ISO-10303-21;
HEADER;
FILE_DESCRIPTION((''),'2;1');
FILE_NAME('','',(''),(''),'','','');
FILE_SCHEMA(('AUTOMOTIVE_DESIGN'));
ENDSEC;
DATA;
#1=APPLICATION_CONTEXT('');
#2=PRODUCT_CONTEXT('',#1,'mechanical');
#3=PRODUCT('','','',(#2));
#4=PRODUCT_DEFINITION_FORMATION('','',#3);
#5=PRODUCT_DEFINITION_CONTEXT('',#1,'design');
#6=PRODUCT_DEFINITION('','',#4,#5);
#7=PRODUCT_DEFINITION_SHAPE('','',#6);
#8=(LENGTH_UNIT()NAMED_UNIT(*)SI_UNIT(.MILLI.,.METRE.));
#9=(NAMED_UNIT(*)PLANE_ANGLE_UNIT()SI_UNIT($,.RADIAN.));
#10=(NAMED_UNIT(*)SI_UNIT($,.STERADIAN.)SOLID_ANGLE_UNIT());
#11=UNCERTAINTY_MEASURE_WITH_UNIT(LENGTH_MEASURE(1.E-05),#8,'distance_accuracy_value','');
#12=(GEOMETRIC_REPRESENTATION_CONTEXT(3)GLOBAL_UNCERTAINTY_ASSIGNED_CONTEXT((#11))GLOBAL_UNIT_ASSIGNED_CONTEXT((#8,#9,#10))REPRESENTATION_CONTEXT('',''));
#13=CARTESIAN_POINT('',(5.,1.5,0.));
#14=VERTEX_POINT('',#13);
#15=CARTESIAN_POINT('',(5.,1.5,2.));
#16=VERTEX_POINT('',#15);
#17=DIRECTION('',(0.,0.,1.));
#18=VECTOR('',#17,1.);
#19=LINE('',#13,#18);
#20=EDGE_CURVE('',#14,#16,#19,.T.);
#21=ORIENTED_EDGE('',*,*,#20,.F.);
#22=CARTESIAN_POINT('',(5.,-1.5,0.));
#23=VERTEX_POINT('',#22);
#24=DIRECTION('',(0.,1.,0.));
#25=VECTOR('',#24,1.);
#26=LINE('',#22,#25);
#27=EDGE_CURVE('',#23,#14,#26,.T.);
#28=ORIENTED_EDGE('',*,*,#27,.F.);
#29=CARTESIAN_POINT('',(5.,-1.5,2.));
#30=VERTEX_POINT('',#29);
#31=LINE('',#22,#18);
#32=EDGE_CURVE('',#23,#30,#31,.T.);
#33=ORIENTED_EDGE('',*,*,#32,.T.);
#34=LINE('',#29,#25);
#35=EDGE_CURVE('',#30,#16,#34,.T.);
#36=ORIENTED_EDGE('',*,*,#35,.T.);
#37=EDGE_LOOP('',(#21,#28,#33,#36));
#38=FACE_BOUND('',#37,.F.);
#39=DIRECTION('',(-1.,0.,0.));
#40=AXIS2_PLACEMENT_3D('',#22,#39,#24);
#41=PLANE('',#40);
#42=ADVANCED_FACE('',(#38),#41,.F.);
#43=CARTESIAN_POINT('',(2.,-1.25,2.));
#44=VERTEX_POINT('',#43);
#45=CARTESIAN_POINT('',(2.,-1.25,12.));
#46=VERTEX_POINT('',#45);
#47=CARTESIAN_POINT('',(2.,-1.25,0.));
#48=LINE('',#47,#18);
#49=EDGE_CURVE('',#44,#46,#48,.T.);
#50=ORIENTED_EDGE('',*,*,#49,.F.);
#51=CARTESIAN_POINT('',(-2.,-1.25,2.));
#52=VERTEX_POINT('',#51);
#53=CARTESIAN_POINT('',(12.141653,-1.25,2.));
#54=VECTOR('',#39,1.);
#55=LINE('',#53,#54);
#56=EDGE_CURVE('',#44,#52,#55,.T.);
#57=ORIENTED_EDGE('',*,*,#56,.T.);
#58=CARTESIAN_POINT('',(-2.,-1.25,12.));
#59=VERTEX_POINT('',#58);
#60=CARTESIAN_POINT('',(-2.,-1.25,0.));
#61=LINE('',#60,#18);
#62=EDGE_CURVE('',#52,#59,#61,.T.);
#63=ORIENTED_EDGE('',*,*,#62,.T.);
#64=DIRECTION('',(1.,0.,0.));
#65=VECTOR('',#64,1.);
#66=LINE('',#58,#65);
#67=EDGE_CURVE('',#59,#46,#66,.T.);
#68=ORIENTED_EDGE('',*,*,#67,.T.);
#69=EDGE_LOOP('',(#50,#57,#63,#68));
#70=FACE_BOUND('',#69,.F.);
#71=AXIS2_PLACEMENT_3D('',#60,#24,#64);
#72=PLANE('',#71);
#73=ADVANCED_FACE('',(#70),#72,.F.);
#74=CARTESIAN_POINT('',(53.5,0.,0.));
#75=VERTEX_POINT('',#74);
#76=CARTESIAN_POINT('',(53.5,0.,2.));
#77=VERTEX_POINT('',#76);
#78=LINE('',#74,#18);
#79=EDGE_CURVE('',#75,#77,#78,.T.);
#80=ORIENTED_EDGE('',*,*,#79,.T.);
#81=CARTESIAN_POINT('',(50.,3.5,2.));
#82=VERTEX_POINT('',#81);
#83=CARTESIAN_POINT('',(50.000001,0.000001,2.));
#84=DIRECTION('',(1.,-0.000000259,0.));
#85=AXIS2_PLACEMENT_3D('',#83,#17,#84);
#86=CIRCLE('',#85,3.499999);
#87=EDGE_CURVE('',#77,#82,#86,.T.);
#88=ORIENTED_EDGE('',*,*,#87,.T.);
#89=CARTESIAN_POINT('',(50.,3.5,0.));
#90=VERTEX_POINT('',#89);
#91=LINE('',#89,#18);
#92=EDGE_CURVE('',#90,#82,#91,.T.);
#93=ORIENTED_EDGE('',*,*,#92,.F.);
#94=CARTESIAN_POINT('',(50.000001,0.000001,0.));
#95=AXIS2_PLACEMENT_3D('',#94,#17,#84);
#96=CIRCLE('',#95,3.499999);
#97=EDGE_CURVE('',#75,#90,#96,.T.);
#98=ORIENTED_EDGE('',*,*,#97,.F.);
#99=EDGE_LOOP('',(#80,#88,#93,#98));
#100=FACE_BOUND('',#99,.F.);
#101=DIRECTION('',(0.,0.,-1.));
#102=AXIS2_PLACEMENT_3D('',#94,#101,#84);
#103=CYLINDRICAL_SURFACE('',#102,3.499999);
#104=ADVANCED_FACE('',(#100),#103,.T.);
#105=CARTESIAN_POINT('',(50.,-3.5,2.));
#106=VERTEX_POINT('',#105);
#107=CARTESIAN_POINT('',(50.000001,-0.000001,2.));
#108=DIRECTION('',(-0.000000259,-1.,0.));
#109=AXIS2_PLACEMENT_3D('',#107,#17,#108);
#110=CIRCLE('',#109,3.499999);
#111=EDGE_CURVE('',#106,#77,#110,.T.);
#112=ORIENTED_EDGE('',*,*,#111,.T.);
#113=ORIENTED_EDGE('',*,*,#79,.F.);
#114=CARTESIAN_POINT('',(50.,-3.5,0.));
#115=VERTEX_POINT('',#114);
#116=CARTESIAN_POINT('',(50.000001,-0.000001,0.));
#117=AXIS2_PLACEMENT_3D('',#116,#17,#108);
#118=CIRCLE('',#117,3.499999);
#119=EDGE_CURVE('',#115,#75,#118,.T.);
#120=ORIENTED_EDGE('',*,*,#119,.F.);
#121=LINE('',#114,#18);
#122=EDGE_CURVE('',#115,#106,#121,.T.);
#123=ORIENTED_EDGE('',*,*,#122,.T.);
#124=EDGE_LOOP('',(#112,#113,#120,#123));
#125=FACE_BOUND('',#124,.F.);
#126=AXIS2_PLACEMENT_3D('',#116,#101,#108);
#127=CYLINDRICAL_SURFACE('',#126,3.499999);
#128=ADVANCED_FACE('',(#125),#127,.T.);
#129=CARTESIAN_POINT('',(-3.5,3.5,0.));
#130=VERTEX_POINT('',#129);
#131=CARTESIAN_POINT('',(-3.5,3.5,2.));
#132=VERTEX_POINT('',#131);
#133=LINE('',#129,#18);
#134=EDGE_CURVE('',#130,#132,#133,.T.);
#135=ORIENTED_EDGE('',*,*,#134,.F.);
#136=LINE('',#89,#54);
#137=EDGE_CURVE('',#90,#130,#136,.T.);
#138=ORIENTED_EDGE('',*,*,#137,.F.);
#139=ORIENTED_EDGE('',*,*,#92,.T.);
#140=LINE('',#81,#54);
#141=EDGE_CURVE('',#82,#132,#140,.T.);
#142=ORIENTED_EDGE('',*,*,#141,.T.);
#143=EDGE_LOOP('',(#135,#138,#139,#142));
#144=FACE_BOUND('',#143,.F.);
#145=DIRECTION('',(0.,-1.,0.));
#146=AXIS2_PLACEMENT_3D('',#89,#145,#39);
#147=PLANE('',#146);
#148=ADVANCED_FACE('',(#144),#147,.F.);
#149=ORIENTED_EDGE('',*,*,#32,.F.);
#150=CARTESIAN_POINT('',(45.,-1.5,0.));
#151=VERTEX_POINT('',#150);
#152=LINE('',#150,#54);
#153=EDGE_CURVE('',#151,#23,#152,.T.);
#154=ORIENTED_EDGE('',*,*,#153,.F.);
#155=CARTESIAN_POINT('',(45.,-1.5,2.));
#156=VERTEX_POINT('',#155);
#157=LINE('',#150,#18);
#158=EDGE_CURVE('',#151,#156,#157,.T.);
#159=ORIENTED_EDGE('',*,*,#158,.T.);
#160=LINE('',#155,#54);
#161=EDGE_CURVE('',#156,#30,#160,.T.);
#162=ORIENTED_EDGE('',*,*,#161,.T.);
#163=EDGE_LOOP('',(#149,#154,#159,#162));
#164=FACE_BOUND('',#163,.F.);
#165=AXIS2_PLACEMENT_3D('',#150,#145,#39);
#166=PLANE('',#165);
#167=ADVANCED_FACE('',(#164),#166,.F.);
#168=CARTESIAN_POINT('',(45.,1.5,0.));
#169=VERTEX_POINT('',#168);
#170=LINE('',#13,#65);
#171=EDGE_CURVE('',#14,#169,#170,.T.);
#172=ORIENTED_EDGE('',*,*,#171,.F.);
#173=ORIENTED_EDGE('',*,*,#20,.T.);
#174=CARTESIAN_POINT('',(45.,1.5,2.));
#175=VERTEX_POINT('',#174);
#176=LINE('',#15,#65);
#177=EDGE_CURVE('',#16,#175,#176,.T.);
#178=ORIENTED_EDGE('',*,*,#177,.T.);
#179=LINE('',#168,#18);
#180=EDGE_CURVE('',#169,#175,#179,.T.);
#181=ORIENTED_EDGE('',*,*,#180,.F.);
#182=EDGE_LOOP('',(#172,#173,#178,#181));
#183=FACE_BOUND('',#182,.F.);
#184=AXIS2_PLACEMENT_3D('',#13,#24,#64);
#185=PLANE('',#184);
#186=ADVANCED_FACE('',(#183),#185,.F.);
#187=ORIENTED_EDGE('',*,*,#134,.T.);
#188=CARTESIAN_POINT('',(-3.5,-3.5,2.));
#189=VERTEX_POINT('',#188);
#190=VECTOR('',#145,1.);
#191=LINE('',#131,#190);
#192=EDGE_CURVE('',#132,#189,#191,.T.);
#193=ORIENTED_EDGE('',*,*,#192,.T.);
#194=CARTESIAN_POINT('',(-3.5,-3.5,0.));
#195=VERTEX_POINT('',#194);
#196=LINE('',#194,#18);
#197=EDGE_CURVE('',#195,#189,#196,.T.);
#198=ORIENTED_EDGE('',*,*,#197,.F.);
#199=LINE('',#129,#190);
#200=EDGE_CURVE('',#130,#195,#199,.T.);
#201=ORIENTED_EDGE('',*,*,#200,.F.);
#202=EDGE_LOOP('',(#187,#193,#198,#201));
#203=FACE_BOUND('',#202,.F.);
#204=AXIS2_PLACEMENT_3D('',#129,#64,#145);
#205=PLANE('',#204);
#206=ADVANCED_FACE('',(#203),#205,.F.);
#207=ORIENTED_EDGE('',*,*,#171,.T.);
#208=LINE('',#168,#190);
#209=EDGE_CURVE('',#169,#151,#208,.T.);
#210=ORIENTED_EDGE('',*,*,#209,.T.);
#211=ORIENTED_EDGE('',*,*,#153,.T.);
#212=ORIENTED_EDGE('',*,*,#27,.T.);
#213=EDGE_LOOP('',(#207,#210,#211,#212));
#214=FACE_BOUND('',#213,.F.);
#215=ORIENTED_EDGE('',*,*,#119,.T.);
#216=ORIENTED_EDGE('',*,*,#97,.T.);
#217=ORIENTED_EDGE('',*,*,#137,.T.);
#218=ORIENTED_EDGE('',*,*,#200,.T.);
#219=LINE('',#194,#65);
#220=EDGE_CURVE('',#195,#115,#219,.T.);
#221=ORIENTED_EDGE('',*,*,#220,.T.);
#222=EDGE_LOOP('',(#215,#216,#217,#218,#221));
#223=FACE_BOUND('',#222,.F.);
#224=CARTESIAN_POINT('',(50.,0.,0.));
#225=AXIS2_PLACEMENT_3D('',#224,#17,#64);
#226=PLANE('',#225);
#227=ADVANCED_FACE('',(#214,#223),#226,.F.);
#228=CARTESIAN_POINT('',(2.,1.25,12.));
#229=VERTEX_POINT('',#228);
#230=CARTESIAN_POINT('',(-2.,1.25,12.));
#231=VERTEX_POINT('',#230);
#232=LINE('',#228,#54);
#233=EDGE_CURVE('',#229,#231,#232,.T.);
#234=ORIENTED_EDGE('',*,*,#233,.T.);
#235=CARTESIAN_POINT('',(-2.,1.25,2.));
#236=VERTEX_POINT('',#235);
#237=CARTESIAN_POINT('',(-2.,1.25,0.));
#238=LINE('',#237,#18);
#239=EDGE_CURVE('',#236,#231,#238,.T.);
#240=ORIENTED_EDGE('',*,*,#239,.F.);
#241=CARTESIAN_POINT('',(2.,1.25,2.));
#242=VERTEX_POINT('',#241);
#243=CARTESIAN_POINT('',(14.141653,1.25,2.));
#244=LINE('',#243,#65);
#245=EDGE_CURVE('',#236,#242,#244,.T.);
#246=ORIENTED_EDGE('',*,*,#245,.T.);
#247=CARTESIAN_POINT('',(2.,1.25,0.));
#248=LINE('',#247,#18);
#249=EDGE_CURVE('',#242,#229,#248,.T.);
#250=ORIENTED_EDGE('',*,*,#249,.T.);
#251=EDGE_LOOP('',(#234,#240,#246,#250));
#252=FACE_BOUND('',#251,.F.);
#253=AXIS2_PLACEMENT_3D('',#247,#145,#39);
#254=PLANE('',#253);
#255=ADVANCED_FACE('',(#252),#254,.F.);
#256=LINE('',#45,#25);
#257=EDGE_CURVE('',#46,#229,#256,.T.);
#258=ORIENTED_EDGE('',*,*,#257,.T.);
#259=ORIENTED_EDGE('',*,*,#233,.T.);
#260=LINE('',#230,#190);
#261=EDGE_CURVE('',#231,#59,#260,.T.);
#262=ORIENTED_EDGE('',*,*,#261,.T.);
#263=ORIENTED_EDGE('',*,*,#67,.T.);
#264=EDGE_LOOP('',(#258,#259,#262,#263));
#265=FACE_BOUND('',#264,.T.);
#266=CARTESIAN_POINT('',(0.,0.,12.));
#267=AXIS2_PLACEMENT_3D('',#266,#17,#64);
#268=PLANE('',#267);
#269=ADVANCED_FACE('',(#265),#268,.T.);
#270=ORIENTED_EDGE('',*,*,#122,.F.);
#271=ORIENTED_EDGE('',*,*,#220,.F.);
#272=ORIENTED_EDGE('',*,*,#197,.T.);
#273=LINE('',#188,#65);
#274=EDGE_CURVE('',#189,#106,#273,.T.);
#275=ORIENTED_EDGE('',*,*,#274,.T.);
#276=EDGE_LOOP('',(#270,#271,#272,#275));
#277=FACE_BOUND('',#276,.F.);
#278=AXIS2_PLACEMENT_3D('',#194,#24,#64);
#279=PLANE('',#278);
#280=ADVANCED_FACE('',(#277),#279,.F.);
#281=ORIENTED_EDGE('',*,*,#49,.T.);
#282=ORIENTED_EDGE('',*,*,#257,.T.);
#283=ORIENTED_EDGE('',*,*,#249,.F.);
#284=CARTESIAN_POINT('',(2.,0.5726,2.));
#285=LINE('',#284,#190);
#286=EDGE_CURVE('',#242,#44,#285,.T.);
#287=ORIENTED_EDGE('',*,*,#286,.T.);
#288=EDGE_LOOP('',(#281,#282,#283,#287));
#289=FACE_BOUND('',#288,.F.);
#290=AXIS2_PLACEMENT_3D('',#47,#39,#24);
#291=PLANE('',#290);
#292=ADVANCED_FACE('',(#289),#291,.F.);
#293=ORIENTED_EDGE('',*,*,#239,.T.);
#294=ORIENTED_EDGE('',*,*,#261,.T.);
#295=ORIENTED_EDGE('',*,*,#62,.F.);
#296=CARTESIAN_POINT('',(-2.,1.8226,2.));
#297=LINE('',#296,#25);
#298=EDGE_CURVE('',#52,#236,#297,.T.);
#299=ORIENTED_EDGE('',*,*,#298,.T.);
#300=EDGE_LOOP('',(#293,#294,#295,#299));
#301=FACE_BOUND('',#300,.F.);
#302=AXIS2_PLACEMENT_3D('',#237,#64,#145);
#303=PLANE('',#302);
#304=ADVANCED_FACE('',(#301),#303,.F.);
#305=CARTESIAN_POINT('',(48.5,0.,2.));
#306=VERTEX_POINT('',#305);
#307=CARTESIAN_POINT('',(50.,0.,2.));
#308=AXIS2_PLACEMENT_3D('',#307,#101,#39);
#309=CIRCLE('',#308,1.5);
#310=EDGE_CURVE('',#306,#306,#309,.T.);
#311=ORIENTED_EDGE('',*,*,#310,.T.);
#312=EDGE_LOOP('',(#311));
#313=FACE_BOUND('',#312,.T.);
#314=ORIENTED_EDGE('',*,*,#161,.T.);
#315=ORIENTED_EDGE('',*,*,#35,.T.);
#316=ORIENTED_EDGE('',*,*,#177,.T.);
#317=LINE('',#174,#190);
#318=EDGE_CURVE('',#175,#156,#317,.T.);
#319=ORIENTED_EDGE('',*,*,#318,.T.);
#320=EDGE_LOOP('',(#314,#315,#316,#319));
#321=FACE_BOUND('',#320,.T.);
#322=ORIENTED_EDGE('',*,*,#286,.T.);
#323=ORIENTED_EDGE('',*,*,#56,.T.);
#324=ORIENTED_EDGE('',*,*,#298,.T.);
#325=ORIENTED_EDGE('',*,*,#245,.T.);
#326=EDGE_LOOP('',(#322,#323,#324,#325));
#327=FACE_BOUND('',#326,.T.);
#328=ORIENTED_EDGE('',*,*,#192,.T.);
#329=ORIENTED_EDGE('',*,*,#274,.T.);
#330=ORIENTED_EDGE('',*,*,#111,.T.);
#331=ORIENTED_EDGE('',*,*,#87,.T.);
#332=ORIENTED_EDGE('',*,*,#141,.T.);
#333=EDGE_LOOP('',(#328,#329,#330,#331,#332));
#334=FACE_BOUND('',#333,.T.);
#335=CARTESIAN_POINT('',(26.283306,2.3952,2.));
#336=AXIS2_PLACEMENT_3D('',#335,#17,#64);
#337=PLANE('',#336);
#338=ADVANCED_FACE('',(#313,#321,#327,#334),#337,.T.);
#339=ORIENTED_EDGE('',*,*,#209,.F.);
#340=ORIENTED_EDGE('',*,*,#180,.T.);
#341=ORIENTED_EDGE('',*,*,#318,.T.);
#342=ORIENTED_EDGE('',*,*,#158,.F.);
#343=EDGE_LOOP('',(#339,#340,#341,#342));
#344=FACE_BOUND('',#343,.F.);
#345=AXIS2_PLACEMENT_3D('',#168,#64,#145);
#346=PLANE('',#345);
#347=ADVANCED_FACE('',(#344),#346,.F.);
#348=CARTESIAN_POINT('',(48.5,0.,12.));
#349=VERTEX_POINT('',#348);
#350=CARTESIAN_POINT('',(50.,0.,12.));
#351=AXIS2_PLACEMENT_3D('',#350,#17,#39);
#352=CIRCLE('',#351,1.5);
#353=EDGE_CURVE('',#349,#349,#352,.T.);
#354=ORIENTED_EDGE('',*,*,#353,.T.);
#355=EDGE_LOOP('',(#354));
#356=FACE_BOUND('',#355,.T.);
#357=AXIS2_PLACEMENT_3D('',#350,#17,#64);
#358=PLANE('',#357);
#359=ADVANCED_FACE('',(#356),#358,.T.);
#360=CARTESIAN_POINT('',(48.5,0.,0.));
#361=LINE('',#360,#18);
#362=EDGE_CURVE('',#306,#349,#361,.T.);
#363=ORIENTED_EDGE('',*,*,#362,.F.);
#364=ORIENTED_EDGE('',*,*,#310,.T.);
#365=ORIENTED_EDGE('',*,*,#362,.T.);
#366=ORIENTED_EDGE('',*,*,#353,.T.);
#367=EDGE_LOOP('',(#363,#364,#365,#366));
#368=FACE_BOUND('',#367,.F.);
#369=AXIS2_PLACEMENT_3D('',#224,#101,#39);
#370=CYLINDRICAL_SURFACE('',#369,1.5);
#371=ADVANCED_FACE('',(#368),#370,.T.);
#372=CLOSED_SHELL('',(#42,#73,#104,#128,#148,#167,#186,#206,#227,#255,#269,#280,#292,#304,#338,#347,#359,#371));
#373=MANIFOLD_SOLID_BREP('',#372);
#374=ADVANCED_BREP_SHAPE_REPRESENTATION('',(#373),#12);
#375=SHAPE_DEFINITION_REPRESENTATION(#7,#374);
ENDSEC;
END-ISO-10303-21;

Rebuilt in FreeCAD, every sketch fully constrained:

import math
import FreeCAD as App
import Part
import Sketcher


def add_polygon(sketch, points):
    """Adds a closed chain of lines whose ends are joined by coincident constraints."""
    first, n = sketch.GeometryCount, len(points)
    for a, b in zip(points, points[1:] + points[:1]):
        sketch.addGeometry(Part.LineSegment(App.Vector(*a, 0), App.Vector(*b, 0)), False)
    for i in range(n):
        sketch.addConstraint(Sketcher.Constraint("Coincident", first + i, 2, first + (i + 1) % n, 1))

doc = App.newDocument("Part")
params = doc.addObject("Spreadsheet::Sheet", "Params")
for row, (alias, value) in enumerate([
    ("sketch1_radius", "3.499999 mm"),
    ("sketch1_width", "40 mm"),
    ("sketch1_height", "3 mm"),
    ("sketch1_width2", "53.5 mm"),
    ("pad1_length", "2 mm"),
    ("sketch2_width", "4 mm"),
    ("sketch2_height", "2.5 mm"),
    ("pad2_length", "12 mm"),
    ("sketch3_diameter", "3 mm"),
    ("pad3_length", "12 mm"),
], start=1):
    params.set(f"A{row}", alias)
    params.set(f"B{row}", "=" + value)
    params.setAlias(f"B{row}", alias)

body = doc.addObject("PartDesign::Body", "Body")

sketch1 = doc.addObject("Sketcher::SketchObject", "Sketch")
body.addObject(sketch1)
sketch1.AttachmentSupport = (doc.XY_Plane, [""])
sketch1.MapMode = "FlatFace"
sketch1.addGeometry(Part.LineSegment(App.Vector(50, 3.5, 0), App.Vector(-3.5, 3.5, 0)), False)
sketch1.addGeometry(Part.LineSegment(App.Vector(-3.5, 3.5, 0), App.Vector(-3.5, -3.5, 0)), False)
sketch1.addGeometry(Part.LineSegment(App.Vector(-3.5, -3.5, 0), App.Vector(50, -3.5, 0)), False)
sketch1.addGeometry(Part.ArcOfCircle(Part.Circle(App.Vector(50, 0, 0), App.Vector(0, 0, 1), 3.5), math.radians(-90), math.radians(0)), False)
sketch1.addGeometry(Part.ArcOfCircle(Part.Circle(App.Vector(50, 0, 0), App.Vector(0, 0, 1), 3.5), math.radians(0), math.radians(90)), False)
add_polygon(sketch1, [(5, 1.5), (45, 1.5), (45, -1.5), (5, -1.5)])
sketch1.addConstraint([
    Sketcher.Constraint("Coincident", 0, 2, 1, 1),
    Sketcher.Constraint("Coincident", 1, 2, 2, 1),
    Sketcher.Constraint("Tangent", 2, 2, 3, 1),
    Sketcher.Constraint("Tangent", 3, 2, 4, 1),
    Sketcher.Constraint("Tangent", 4, 2, 0, 1),
    Sketcher.Constraint("Horizontal", 0),
    Sketcher.Constraint("Vertical", 1),
    Sketcher.Constraint("Horizontal", 2),
    Sketcher.Constraint("Horizontal", 5),
    Sketcher.Constraint("Vertical", 6),
    Sketcher.Constraint("Horizontal", 7),
    Sketcher.Constraint("Vertical", 8),
    Sketcher.Constraint("Equal", 3, 4),
    Sketcher.Constraint("PointOnObject", 3, 3, -1),
    Sketcher.Constraint("PointOnObject", 3, 2, -1),
    Sketcher.Constraint("Radius", 3, 3.499999),
    Sketcher.Constraint("DistanceX", 5, 1, 5, 2, 40.0),
    Sketcher.Constraint("DistanceY", 6, 2, 6, 1, 3.0),
    Sketcher.Constraint("DistanceX", 0, 2, 0, 1, 53.5),
    Sketcher.Constraint("DistanceX", -1, 1, 3, 3, 50.000001),
    Sketcher.Constraint("DistanceX", -1, 1, 5, 2, 45.0),
    Sketcher.Constraint("DistanceY", 5, 2, 4, 2, 2.0),
])
sketch1.setExpression("Constraints[19]", "Params.sketch1_radius")
sketch1.setExpression("Constraints[20]", "Params.sketch1_width")
sketch1.setExpression("Constraints[21]", "Params.sketch1_height")
sketch1.setExpression("Constraints[22]", "Params.sketch1_width2")
pad1 = doc.addObject("PartDesign::Pad", "Pad")
body.addObject(pad1)
pad1.Profile = sketch1
pad1.setExpression("Length", "Params.pad1_length")

sketch2 = doc.addObject("Sketcher::SketchObject", "Sketch001")
body.addObject(sketch2)
sketch2.AttachmentSupport = (doc.XY_Plane, [""])
sketch2.MapMode = "FlatFace"
add_polygon(sketch2, [(2, -1.2), (2, 1.2), (-2, 1.2), (-2, -1.2)])
sketch2.addConstraint([
    Sketcher.Constraint("Vertical", 0),
    Sketcher.Constraint("Horizontal", 1),
    Sketcher.Constraint("Vertical", 2),
    Sketcher.Constraint("Horizontal", 3),
    Sketcher.Constraint("Symmetric", 0, 2, 2, 2, -1, 1),
    Sketcher.Constraint("DistanceX", 1, 2, 1, 1, 4.0),
    Sketcher.Constraint("DistanceY", 0, 1, 0, 2, 2.5),
])
sketch2.setExpression("Constraints[9]", "Params.sketch2_width")
sketch2.setExpression("Constraints[10]", "Params.sketch2_height")
pad2 = doc.addObject("PartDesign::Pad", "Pad001")
body.addObject(pad2)
pad2.Profile = sketch2
pad2.setExpression("Length", "Params.pad2_length")

sketch3 = doc.addObject("Sketcher::SketchObject", "Sketch002")
body.addObject(sketch3)
sketch3.AttachmentSupport = (doc.XY_Plane, [""])
sketch3.MapMode = "FlatFace"
sketch3.addGeometry(Part.Circle(App.Vector(50, 0, 0), App.Vector(0, 0, 1), 1.5), False)
sketch3.addConstraint([
    Sketcher.Constraint("PointOnObject", 0, 3, -1),
    Sketcher.Constraint("Diameter", 0, 3.0),
    Sketcher.Constraint("DistanceX", -1, 1, 0, 3, 50.0),
])
sketch3.setExpression("Constraints[1]", "Params.sketch3_diameter")
pad3 = doc.addObject("PartDesign::Pad", "Pad002")
body.addObject(pad3)
pad3.Profile = sketch3
pad3.setExpression("Length", "Params.pad3_length")

doc.recompute()
